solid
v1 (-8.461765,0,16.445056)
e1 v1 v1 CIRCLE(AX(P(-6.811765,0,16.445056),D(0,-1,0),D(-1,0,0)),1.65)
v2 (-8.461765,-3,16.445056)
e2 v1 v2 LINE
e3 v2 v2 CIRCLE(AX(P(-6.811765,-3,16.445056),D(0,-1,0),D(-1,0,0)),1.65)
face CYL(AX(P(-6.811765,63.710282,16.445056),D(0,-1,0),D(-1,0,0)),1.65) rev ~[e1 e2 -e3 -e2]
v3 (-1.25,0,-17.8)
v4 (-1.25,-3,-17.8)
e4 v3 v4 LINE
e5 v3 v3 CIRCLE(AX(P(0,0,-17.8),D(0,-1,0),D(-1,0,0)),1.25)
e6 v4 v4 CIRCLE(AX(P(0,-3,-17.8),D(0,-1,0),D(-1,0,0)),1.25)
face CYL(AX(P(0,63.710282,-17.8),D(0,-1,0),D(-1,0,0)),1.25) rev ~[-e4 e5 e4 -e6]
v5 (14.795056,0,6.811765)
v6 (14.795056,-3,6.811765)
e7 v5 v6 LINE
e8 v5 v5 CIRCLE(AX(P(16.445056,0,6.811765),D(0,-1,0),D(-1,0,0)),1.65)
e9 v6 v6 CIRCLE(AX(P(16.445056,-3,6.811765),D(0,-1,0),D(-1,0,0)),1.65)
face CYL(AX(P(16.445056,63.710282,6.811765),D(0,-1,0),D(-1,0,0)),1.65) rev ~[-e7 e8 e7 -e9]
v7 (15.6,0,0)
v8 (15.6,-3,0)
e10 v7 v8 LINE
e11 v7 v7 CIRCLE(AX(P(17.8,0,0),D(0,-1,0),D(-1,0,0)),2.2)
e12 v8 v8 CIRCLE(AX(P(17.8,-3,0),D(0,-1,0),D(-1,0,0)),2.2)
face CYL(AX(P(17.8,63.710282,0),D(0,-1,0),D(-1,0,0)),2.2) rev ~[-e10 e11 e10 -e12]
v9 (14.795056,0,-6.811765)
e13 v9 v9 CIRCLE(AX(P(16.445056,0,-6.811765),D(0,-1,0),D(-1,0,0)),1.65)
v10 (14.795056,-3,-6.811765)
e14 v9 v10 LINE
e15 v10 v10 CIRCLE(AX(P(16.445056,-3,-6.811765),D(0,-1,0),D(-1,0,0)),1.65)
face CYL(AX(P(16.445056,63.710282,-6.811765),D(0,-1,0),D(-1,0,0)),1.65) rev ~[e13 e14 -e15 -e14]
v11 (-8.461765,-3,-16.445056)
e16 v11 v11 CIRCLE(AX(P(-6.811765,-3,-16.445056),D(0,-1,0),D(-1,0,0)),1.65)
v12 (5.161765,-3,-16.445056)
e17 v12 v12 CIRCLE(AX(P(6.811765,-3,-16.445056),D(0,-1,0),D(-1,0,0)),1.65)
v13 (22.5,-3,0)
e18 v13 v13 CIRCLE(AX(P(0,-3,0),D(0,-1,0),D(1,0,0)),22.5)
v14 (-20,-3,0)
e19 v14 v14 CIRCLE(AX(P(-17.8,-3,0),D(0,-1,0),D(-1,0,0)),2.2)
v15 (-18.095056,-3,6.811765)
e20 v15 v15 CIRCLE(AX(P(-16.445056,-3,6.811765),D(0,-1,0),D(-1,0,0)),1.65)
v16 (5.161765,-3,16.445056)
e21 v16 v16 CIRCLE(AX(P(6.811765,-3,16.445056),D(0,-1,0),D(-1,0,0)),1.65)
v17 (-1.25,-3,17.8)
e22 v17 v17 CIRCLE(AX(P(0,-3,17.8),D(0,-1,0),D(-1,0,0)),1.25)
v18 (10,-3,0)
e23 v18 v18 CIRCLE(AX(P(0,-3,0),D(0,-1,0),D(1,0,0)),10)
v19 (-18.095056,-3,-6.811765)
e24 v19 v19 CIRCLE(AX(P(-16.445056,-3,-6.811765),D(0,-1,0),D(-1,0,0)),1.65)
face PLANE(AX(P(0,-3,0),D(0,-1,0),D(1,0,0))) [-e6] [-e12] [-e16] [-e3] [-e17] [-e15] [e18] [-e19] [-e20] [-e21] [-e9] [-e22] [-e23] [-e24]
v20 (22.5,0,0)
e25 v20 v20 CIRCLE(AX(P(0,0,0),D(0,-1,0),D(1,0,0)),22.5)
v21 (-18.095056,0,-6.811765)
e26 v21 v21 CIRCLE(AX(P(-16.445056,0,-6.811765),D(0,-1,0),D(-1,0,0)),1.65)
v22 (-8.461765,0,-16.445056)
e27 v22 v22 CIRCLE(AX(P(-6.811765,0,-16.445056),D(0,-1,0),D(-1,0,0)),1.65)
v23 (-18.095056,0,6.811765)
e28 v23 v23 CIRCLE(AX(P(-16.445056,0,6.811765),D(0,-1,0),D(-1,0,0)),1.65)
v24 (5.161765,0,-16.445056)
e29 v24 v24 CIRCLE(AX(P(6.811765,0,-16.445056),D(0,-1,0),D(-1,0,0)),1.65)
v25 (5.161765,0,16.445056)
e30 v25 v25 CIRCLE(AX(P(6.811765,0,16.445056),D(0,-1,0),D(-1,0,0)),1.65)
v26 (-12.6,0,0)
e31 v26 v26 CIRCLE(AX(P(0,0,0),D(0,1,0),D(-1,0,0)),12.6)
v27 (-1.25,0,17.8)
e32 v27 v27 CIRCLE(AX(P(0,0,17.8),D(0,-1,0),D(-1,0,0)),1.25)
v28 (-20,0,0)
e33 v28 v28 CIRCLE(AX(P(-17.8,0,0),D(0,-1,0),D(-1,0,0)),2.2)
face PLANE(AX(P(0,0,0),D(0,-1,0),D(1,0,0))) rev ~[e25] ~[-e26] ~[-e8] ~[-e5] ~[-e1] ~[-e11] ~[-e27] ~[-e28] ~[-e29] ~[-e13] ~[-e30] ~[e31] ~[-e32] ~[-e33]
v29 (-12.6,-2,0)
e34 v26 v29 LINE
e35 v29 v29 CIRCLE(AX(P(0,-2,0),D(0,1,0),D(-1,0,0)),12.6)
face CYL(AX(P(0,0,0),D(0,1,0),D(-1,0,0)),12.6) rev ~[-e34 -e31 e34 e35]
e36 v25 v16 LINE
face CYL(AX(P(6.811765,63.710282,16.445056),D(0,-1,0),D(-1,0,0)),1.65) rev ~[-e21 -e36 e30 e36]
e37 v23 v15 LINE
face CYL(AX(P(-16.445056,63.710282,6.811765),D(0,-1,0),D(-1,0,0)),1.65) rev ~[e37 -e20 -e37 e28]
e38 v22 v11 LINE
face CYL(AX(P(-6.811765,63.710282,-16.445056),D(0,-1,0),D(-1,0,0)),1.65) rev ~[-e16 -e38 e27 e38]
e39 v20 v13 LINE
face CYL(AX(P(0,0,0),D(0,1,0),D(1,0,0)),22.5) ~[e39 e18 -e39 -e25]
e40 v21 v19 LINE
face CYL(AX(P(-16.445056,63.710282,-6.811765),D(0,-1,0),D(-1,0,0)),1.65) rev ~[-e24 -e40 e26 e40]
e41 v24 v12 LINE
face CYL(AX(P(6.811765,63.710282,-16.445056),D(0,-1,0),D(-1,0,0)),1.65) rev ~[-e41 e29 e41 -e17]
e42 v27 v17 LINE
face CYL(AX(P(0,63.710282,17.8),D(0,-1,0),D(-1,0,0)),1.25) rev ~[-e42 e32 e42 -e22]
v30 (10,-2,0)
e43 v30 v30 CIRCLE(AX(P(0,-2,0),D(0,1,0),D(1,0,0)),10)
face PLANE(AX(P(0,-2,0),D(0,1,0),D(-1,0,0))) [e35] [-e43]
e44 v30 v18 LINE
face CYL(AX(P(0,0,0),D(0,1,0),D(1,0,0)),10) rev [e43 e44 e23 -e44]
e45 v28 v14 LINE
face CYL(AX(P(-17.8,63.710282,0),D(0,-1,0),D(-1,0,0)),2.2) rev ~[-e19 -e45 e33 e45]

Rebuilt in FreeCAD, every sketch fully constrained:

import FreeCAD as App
import Part
import Sketcher

V = App.Vector

doc = App.newDocument("Part")
body = doc.addObject("PartDesign::Body", "Body")

# Sketch on XZ plane
sketch1 = body.newObject("Sketcher::SketchObject", "Sketch")
sketch1.AttachmentSupport = (doc.getObject("XZ_Plane"), [""])
sketch1.MapMode = "FlatFace"
sketch1.addGeometry([
    Part.Circle(V(0, 0, 0), V(0, 0, 1), 22),
    Part.Circle(V(0, 0, 0), V(0, 0, 1), 10),
], False)
sketch1.addConstraint([
    Sketcher.Constraint("Coincident", 0, 3, -1, 1),
    Sketcher.Constraint("Coincident", 1, 3, -1, 1),
    Sketcher.Constraint("Diameter", 0, 45.0),
    Sketcher.Constraint("Diameter", 1, 20.0),
])
pad1 = body.newObject("PartDesign::Pad", "Pad")
pad1.Profile = sketch1
pad1.Length = 3

# Sketch on XZ plane
sketch2 = body.newObject("Sketcher::SketchObject", "Sketch001")
sketch2.AttachmentSupport = (doc.getObject("XZ_Plane"), [""])
sketch2.MapMode = "FlatFace"
sketch2.addGeometry([
    Part.Circle(V(-16.4, 6.8, 0), V(0, 0, 1), 1.6),  # 0
    Part.Circle(V(-6.8, 16.4, 0), V(0, 0, 1), 1.6),  # 1
    Part.Circle(V(6.8, 16.4, 0), V(0, 0, 1), 1.6),  # 2
    Part.Circle(V(16.4, 6.8, 0), V(0, 0, 1), 1.6),  # 3
    Part.Circle(V(16.4, -6.8, 0), V(0, 0, 1), 1.6),  # 4
    Part.Circle(V(6.8, -16.4, 0), V(0, 0, 1), 1.6),  # 5
    Part.Circle(V(-6.8, -16.4, 0), V(0, 0, 1), 1.6),  # 6
    Part.Circle(V(-16.4, -6.8, 0), V(0, 0, 1), 1.6),  # 7
], False)
sketch2.addConstraint([
    Sketcher.Constraint("Equal", 0, 1),
    Sketcher.Constraint("Equal", 1, 2),
    Sketcher.Constraint("Equal", 2, 3),
    Sketcher.Constraint("Equal", 3, 4),
    Sketcher.Constraint("Equal", 4, 5),
    Sketcher.Constraint("Equal", 5, 6),
    Sketcher.Constraint("Equal", 6, 7),
    Sketcher.Constraint("Symmetric", 0, 3, 4, 3, -1, 1),
    Sketcher.Constraint("Symmetric", 1, 3, 5, 3, -1, 1),
    Sketcher.Constraint("Symmetric", 2, 3, 6, 3, -1, 1),
    Sketcher.Constraint("Symmetric", 3, 3, 7, 3, -1, 1),
    Sketcher.Constraint("Symmetric", 1, 3, 2, 3, -2),
    Sketcher.Constraint("Symmetric", 0, 3, 3, 3, -2),
    Sketcher.Constraint("Diameter", 0, 3.3),
    Sketcher.Constraint("DistanceX", 0, 3, 1, 3, 9.633291),
    Sketcher.Constraint("DistanceY", 0, 3, 1, 3, 9.633291),
    Sketcher.Constraint("DistanceX", 1, 3, 2, 3, 13.62353),
    Sketcher.Constraint("DistanceY", 4, 3, 3, 3, 13.62353),
])
doc.recompute()
hole = body.newObject("PartDesign::Hole", "Hole")
hole.Profile = sketch2
hole.ThreadType = "None"
hole.Diameter = 3.3
hole.DepthType = "ThroughAll"
hole.Reversed = True

# Sketch on XZ plane
sketch3 = body.newObject("Sketcher::SketchObject", "Sketch002")
sketch3.AttachmentSupport = (doc.getObject("XZ_Plane"), [""])
sketch3.MapMode = "FlatFace"
sketch3.addGeometry([
    Part.Circle(V(-17.8, 0, 0), V(0, 0, 1), 2.2),
    Part.Circle(V(17.8, 0, 0), V(0, 0, 1), 2.2),
], False)
sketch3.addConstraint([
    Sketcher.Constraint("Equal", 0, 1),
    Sketcher.Constraint("Symmetric", 0, 3, 1, 3, -1, 1),
    Sketcher.Constraint("PointOnObject", 0, 3, -1),
    Sketcher.Constraint("Diameter", 0, 4.4),
    Sketcher.Constraint("DistanceX", 0, 3, -1, 1, 17.8),
])
doc.recompute()
hole2 = body.newObject("PartDesign::Hole", "Hole001")
hole2.Profile = sketch3
hole2.ThreadType = "None"
hole2.Diameter = 4.4
hole2.DepthType = "ThroughAll"
hole2.Reversed = True

# Sketch on XZ plane
sketch4 = body.newObject("Sketcher::SketchObject", "Sketch003")
sketch4.AttachmentSupport = (doc.getObject("XZ_Plane"), [""])
sketch4.MapMode = "FlatFace"
sketch4.addGeometry([
    Part.Circle(V(0, 0, 0), V(0, 0, 1), 13),
    Part.Circle(V(0, 0, 0), V(0, 0, 1), 10),
], False)
sketch4.addConstraint([
    Sketcher.Constraint("Coincident", 0, 3, -1, 1),
    Sketcher.Constraint("Coincident", 1, 3, -1, 1),
    Sketcher.Constraint("Diameter", 1, 20.0),
    Sketcher.Constraint("Diameter", 0, 25.2),
])
pocket1 = body.newObject("PartDesign::Pocket", "Pocket")
pocket1.Profile = sketch4
pocket1.Length = 2
pocket1.Reversed = True

# Sketch on XZ plane
sketch5 = body.newObject("Sketcher::SketchObject", "Sketch004")
sketch5.AttachmentSupport = (doc.getObject("XZ_Plane"), [""])
sketch5.MapMode = "FlatFace"
sketch5.addGeometry([
    Part.Circle(V(0, 17.8, 0), V(0, 0, 1), 1.2),
    Part.Circle(V(0, -17.8, 0), V(0, 0, 1), 1.2),
], False)
sketch5.addConstraint([
    Sketcher.Constraint("Equal", 0, 1),
    Sketcher.Constraint("Symmetric", 0, 3, 1, 3, -1, 1),
    Sketcher.Constraint("PointOnObject", 0, 3, -2),
    Sketcher.Constraint("Diameter", 0, 2.5),
    Sketcher.Constraint("DistanceY", -1, 1, 0, 3, 17.8),
])
doc.recompute()
hole3 = body.newObject("PartDesign::Hole", "Hole002")
hole3.Profile = sketch5
hole3.ThreadType = "None"
hole3.Diameter = 2.5
hole3.DepthType = "ThroughAll"
hole3.Reversed = True

doc.recompute()
